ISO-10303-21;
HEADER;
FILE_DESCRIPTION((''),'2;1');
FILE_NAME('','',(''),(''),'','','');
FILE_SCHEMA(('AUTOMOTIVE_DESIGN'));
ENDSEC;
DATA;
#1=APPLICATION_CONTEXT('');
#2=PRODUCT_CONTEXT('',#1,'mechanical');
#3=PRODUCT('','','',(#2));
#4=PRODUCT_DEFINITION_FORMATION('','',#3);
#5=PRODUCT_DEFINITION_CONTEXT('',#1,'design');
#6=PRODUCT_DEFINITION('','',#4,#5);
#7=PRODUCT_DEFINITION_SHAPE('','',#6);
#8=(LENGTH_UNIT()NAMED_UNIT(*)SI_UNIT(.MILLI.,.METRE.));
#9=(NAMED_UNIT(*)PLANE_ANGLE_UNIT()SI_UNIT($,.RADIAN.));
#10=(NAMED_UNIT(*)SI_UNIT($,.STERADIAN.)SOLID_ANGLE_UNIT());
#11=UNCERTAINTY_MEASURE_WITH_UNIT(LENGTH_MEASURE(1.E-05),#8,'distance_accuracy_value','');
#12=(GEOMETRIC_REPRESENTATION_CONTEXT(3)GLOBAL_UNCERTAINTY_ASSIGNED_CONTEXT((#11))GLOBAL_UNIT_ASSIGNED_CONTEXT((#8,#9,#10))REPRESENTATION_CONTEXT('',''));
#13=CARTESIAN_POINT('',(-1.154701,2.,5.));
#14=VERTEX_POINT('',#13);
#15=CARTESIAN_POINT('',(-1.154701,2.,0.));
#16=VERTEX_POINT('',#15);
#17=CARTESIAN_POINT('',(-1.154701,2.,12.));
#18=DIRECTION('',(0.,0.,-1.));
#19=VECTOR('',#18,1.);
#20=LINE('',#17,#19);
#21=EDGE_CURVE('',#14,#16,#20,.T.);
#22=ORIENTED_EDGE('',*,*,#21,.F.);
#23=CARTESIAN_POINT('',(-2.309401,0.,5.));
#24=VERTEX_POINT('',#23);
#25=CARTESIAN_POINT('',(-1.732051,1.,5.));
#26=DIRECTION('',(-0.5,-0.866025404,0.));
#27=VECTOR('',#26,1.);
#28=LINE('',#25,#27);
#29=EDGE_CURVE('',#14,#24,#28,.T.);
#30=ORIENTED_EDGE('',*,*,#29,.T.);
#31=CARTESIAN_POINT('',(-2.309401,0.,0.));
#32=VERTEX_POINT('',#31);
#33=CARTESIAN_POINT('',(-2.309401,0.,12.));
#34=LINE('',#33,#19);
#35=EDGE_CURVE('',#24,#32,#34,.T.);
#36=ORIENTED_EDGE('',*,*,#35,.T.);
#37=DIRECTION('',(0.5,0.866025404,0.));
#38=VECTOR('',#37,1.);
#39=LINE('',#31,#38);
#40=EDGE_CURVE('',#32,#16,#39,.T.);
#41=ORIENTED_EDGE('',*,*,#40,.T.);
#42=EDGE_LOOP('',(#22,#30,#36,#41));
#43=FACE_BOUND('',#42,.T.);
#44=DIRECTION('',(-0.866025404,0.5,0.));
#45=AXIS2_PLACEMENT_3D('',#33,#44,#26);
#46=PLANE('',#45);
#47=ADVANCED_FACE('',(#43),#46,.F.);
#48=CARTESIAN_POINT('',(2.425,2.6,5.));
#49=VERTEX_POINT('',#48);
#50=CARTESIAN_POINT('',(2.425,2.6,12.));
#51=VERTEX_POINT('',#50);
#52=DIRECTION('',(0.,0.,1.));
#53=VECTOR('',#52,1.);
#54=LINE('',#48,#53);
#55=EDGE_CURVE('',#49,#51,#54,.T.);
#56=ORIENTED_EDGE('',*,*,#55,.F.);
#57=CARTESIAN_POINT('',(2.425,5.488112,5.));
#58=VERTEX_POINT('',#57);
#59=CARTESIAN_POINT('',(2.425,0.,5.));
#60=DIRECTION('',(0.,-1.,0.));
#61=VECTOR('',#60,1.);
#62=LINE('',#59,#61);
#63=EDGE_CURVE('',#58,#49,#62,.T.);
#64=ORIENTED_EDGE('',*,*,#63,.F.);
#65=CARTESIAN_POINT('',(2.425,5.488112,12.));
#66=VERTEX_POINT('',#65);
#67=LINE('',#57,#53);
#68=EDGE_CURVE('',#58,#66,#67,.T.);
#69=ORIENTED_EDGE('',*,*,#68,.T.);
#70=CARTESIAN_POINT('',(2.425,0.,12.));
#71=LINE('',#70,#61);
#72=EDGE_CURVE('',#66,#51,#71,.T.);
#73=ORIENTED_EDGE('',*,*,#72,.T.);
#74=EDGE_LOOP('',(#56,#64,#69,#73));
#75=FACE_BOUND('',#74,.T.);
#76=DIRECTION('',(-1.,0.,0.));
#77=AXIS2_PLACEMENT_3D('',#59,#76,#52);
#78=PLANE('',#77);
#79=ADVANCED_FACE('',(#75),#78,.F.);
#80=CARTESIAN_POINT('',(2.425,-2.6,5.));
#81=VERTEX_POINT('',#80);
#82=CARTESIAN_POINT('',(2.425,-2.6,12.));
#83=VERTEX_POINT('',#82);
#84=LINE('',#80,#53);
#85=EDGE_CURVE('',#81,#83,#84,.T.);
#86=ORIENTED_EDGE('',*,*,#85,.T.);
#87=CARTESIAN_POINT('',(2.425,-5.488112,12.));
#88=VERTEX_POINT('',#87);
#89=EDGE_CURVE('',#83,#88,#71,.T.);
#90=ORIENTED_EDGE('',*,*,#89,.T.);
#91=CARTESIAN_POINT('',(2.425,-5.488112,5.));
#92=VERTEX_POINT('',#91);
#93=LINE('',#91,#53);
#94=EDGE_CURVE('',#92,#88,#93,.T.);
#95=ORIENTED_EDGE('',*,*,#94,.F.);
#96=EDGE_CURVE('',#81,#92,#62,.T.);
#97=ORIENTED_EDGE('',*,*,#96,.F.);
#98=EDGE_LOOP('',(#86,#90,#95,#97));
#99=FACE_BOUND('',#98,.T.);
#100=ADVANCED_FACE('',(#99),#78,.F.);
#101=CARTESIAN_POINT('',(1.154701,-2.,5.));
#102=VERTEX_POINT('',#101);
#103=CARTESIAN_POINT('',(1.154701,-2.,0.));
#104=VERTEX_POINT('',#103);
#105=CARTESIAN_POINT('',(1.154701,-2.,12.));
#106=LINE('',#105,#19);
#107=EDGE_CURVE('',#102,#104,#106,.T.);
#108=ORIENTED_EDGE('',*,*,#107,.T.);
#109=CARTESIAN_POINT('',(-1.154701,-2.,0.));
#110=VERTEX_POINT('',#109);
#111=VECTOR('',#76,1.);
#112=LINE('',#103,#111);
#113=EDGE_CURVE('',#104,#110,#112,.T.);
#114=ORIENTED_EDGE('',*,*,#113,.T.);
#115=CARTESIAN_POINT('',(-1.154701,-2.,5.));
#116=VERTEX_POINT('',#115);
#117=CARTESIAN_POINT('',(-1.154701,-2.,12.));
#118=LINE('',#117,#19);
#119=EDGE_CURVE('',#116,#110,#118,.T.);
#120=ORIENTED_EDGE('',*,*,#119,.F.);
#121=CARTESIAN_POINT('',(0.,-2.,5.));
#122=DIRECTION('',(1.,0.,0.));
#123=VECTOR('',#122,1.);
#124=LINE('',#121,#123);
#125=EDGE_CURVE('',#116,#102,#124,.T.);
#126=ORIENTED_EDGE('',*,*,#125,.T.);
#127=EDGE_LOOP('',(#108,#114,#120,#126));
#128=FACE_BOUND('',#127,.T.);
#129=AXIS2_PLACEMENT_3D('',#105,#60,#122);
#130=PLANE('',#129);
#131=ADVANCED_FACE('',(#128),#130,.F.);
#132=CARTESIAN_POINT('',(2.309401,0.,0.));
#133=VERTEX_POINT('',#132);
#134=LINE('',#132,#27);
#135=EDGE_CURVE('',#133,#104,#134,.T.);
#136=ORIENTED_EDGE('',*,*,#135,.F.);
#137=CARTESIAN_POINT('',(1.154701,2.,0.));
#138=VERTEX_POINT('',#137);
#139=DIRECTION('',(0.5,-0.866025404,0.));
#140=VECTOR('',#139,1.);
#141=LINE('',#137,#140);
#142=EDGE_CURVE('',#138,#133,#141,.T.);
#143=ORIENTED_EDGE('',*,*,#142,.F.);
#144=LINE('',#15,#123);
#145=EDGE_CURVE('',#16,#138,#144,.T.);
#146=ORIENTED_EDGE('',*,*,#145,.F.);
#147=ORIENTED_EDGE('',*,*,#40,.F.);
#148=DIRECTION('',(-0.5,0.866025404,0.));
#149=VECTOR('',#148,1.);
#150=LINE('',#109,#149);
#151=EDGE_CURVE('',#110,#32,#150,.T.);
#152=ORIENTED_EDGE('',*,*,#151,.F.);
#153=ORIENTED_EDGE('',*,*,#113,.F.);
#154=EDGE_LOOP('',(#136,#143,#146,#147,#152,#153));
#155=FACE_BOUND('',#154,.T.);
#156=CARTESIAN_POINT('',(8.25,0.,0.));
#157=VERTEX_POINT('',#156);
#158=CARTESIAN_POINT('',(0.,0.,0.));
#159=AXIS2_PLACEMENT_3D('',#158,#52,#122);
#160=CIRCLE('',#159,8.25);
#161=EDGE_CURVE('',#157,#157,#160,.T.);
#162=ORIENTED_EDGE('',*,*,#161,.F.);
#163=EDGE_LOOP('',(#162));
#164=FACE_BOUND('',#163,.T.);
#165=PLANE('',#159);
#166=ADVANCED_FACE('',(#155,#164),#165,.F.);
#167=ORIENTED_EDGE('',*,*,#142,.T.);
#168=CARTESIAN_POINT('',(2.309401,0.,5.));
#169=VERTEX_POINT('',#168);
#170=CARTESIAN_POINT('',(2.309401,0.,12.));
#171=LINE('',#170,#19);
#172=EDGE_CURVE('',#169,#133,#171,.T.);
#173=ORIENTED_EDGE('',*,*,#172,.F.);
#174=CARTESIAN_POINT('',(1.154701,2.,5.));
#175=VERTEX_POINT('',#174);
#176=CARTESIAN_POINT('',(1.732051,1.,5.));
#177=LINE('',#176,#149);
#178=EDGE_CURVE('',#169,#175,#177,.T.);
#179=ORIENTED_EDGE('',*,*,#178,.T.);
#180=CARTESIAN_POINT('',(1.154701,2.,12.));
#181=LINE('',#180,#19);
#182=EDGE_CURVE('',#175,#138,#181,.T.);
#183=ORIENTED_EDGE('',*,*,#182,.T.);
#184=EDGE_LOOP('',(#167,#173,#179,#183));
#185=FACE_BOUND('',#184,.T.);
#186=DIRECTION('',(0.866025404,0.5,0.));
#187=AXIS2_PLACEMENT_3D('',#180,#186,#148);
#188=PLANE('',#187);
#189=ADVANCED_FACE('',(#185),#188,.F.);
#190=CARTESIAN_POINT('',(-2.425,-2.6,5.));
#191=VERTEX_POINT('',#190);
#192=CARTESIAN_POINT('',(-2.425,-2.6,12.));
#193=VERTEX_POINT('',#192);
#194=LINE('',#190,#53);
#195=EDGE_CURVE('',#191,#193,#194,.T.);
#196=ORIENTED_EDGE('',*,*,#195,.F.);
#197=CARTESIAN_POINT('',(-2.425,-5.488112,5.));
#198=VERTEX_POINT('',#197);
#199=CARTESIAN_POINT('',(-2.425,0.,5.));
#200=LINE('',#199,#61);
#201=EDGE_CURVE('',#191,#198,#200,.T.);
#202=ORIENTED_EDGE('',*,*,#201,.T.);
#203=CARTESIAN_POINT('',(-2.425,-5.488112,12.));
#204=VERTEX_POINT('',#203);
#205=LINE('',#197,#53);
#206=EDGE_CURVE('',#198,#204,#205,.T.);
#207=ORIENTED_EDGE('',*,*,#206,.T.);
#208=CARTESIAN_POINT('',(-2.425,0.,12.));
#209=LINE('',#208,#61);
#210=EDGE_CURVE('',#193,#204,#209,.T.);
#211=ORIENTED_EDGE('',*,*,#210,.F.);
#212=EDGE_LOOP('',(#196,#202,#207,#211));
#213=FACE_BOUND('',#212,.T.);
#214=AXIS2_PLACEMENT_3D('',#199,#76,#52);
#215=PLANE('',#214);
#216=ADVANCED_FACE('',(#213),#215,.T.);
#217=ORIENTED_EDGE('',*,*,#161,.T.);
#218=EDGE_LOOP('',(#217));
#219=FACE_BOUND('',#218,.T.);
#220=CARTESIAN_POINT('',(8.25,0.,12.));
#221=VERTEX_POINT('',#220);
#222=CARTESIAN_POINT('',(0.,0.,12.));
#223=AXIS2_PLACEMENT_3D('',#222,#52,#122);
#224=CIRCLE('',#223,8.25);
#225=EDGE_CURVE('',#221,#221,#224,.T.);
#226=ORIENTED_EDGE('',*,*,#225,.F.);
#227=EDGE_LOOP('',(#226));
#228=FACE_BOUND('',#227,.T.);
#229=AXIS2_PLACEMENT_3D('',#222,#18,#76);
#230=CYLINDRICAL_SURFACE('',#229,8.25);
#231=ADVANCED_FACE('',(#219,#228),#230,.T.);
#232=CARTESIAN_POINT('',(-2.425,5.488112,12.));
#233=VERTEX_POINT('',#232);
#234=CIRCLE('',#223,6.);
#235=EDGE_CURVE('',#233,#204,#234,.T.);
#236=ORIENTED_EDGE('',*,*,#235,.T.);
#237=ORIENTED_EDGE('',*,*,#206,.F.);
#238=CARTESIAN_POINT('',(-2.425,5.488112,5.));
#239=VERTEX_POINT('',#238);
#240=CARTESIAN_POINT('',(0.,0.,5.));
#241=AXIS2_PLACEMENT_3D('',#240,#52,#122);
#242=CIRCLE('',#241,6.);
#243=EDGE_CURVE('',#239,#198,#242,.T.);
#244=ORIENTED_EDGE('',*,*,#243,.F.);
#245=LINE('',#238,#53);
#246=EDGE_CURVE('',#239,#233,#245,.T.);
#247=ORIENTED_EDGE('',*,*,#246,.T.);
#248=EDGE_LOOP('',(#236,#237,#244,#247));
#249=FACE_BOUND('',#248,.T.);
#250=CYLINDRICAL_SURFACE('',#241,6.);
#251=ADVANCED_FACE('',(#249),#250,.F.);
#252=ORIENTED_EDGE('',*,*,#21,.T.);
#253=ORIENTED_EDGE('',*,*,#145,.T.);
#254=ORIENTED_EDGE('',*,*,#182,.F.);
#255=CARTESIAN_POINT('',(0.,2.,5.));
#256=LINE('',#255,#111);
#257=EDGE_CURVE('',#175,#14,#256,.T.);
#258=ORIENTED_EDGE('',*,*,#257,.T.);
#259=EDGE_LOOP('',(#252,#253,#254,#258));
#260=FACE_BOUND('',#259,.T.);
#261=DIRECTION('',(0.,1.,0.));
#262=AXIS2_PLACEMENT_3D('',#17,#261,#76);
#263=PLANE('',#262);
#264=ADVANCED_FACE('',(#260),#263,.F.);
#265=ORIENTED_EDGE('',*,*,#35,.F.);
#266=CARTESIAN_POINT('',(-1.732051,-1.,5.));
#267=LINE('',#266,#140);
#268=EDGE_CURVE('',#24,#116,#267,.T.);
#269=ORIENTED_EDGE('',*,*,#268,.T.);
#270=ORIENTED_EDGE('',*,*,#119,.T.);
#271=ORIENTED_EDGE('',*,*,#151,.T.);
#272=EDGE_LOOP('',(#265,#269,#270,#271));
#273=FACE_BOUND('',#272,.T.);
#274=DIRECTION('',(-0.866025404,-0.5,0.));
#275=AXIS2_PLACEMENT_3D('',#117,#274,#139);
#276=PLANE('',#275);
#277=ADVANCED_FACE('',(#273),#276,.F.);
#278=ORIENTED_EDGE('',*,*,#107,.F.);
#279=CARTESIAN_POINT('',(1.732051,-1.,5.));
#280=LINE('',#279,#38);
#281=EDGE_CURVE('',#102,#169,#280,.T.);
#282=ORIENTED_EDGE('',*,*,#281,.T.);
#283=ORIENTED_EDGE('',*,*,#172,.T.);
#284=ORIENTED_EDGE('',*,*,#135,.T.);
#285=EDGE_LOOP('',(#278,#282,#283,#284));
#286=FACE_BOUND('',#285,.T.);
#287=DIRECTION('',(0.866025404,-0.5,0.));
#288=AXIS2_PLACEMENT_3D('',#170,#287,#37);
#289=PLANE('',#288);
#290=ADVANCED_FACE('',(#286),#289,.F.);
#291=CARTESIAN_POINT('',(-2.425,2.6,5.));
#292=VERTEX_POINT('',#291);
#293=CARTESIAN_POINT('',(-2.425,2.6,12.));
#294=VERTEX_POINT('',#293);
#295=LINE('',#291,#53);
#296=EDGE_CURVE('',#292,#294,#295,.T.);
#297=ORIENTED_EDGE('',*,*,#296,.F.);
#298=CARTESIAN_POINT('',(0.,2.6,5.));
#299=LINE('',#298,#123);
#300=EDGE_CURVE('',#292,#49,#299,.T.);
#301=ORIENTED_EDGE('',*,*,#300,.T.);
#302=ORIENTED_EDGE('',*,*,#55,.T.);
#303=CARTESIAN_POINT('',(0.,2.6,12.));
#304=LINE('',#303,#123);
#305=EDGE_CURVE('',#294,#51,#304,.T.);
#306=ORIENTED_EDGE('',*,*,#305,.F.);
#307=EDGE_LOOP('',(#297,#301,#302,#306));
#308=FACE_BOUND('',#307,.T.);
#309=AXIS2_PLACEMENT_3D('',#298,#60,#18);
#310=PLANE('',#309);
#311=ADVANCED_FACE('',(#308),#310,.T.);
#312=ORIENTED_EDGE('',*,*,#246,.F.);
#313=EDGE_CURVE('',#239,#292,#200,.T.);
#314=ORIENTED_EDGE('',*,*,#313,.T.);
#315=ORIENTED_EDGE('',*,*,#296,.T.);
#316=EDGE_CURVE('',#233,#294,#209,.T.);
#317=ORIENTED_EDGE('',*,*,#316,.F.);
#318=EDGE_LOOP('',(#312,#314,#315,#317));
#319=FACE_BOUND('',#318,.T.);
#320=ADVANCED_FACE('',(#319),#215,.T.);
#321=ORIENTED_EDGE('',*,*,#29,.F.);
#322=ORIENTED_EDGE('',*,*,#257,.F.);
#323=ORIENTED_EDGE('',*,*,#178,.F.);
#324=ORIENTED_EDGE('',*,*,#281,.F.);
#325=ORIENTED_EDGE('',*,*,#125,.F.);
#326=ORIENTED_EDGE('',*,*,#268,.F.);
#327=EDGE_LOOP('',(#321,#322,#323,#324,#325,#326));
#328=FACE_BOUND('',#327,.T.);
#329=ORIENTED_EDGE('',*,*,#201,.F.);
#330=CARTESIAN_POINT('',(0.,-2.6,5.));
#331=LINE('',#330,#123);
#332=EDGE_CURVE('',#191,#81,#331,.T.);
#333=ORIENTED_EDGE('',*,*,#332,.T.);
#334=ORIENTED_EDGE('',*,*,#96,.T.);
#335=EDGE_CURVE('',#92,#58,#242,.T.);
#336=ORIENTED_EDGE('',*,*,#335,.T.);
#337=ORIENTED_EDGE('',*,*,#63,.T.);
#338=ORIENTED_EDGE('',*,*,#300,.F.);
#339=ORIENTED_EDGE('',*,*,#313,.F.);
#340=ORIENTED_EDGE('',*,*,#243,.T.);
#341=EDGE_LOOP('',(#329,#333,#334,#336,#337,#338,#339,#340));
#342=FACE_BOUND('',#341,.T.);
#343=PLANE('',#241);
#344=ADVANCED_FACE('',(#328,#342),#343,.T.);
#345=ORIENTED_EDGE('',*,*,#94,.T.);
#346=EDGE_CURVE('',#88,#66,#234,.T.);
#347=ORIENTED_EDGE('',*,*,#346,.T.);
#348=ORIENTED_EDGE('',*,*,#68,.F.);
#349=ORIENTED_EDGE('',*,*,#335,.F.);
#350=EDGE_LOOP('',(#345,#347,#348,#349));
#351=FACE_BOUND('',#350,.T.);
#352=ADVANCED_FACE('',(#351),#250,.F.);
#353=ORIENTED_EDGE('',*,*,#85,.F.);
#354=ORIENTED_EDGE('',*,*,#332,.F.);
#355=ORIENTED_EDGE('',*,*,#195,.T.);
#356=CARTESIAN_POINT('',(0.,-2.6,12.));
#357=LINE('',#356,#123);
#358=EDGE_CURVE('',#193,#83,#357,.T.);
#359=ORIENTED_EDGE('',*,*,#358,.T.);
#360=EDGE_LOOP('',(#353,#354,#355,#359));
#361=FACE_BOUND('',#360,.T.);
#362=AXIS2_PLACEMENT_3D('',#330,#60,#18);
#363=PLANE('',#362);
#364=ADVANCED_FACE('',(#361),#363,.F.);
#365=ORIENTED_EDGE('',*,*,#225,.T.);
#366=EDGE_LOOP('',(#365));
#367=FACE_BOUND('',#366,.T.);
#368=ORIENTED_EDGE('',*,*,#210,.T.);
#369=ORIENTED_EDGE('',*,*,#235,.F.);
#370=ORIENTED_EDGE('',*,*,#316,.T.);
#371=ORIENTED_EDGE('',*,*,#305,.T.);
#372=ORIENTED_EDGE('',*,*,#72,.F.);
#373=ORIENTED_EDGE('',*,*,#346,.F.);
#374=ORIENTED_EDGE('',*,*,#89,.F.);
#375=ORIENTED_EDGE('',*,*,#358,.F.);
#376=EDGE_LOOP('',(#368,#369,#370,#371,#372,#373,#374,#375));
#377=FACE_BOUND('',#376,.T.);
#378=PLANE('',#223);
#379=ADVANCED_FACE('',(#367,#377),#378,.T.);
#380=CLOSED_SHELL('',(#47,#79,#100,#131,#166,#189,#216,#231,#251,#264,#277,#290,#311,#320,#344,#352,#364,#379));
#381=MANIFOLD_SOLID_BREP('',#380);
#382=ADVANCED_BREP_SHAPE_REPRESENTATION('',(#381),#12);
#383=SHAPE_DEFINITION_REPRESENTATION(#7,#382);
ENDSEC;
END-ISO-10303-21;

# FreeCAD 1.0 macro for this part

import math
import FreeCAD as App
import Part
import Sketcher
from FreeCAD import Vector
Q = App.Units.Quantity

doc = App.newDocument("Part")
body = doc.addObject("PartDesign::Body", "Body")

# Sketch on XY plane
sketch1 = body.newObject("Sketcher::SketchObject", "Sketch")
sketch1.AttachmentSupport = (doc.getObject("XY_Plane"), [""])
sketch1.MapMode = "FlatFace"
sketch1.addGeometry(Part.Circle(Vector(0, 0, 0), Vector(0, 0, 1), 8), False)
sketch1.addConstraint([
    Sketcher.Constraint("Coincident", 0, 3, -1, 1),
    Sketcher.Constraint("Diameter", 0, Q("16.5 mm")),
])
pad1 = body.newObject("PartDesign::Pad", "Pad")
pad1.Profile = sketch1
pad1.Length = 12

# Sketch on XY plane
sketch2 = body.newObject("Sketcher::SketchObject", "Sketch001")
sketch2.AttachmentSupport = (doc.getObject("XY_Plane"), [""])
sketch2.MapMode = "FlatFace"
sketch2.AttachmentOffset = App.Placement(Vector(0, 0, 12), App.Rotation())
sketch2.addGeometry([
    Part.LineSegment(Vector(-2.4, 2.6, 0), Vector(-2.4, 5.5, 0)),  # 0
    Part.ArcOfCircle(Part.Circle(Vector(0, 0, 0), Vector(0, 0, 1), 6), math.radians(114), math.radians(246)),  # 1
    Part.LineSegment(Vector(-2.4, -5.5, 0), Vector(-2.4, -2.6, 0)),  # 2
    Part.LineSegment(Vector(-2.4, -2.6, 0), Vector(2.4, -2.6, 0)),  # 3
    Part.LineSegment(Vector(2.4, -2.6, 0), Vector(2.4, -5.5, 0)),  # 4
    Part.ArcOfCircle(Part.Circle(Vector(0, 0, 0), Vector(0, 0, 1), 6), math.radians(-66), math.radians(0)),  # 5
    Part.ArcOfCircle(Part.Circle(Vector(0, 0, 0), Vector(0, 0, 1), 6), math.radians(0), math.radians(66)),  # 6
    Part.LineSegment(Vector(2.4, 5.5, 0), Vector(2.4, 2.6, 0)),  # 7
    Part.LineSegment(Vector(2.4, 2.6, 0), Vector(-2.4, 2.6, 0)),  # 8
], False)
sketch2.addConstraint([
    Sketcher.Constraint("Coincident", 0, 2, 1, 1),
    Sketcher.Constraint("Coincident", 1, 2, 2, 1),
    Sketcher.Constraint("Coincident", 2, 2, 3, 1),
    Sketcher.Constraint("Coincident", 3, 2, 4, 1),
    Sketcher.Constraint("Coincident", 4, 2, 5, 1),
    Sketcher.Constraint("Tangent", 5, 2, 6, 1),
    Sketcher.Constraint("Coincident", 6, 2, 7, 1),
    Sketcher.Constraint("Coincident", 7, 2, 8, 1),
    Sketcher.Constraint("Coincident", 8, 2, 0, 1),
    Sketcher.Constraint("Vertical", 0),
    Sketcher.Constraint("Vertical", 2),
    Sketcher.Constraint("Horizontal", 3),
    Sketcher.Constraint("Vertical", 4),
    Sketcher.Constraint("Vertical", 7),
    Sketcher.Constraint("Horizontal", 8),
    Sketcher.Constraint("Coincident", 1, 3, -1, 1),
    Sketcher.Constraint("Coincident", 5, 3, -1, 1),
    Sketcher.Constraint("Equal", 1, 5),
    Sketcher.Constraint("Equal", 5, 6),
    Sketcher.Constraint("Symmetric", 2, 2, 7, 2, -1, 1),
    Sketcher.Constraint("PointOnObject", 5, 2, -1),
    Sketcher.Constraint("Horizontal", 1, 2, 4, 2),
    Sketcher.Constraint("Horizontal", 0, 2, 6, 2),
    Sketcher.Constraint("Radius", 1, Q("6 mm")),
    Sketcher.Constraint("DistanceX", 3, 1, 3, 2, Q("4.85 mm")),
    Sketcher.Constraint("DistanceY", 2, 2, -1, 1, Q("2.6 mm")),
])
pocket1 = body.newObject("PartDesign::Pocket", "Pocket")
pocket1.Profile = sketch2
pocket1.Length = 7

# Sketch on XY plane
sketch3 = body.newObject("Sketcher::SketchObject", "Sketch002")
sketch3.AttachmentSupport = (doc.getObject("XY_Plane"), [""])
sketch3.MapMode = "FlatFace"
sketch3.addGeometry([
    Part.LineSegment(Vector(-2.3, 0, 0), Vector(-1.2, 2, 0)),  # 0
    Part.LineSegment(Vector(-1.2, 2, 0), Vector(1.2, 2, 0)),  # 1
    Part.LineSegment(Vector(1.2, 2, 0), Vector(2.3, 0, 0)),  # 2
    Part.LineSegment(Vector(2.3, 0, 0), Vector(1.2, -2, 0)),  # 3
    Part.LineSegment(Vector(1.2, -2, 0), Vector(-1.2, -2, 0)),  # 4
    Part.LineSegment(Vector(-1.2, -2, 0), Vector(-2.3, 0, 0)),  # 5
], False)
sketch3.addConstraint([
    Sketcher.Constraint("Coincident", 0, 2, 1, 1),
    Sketcher.Constraint("Coincident", 1, 2, 2, 1),
    Sketcher.Constraint("Coincident", 2, 2, 3, 1),
    Sketcher.Constraint("Coincident", 3, 2, 4, 1),
    Sketcher.Constraint("Coincident", 4, 2, 5, 1),
    Sketcher.Constraint("Coincident", 5, 2, 0, 1),
    Sketcher.Constraint("Horizontal", 1),
    Sketcher.Constraint("Horizontal", 4),
    Sketcher.Constraint("Symmetric", 0, 2, 3, 2, -1, 1),
    Sketcher.Constraint("Symmetric", 2, 2, 5, 2, -1, 1),
    Sketcher.Constraint("PointOnObject", 2, 2, -1),
    Sketcher.Constraint("Parallel", 2, 5),
    Sketcher.Constraint("Vertical", 1, 2, 3, 2),
    Sketcher.Constraint("Angle", 0, Q("60 deg")),
    Sketcher.Constraint("DistanceY", -1, 1, 0, 2, Q("2 mm")),
    Sketcher.Constraint("DistanceX", 1, 1, 1, 2, Q("2.309401 mm")),
])
pocket2 = body.newObject("PartDesign::Pocket", "Pocket001")
pocket2.Profile = sketch3
pocket2.Type = "ThroughAll"
pocket2.Reversed = True

doc.recompute()
